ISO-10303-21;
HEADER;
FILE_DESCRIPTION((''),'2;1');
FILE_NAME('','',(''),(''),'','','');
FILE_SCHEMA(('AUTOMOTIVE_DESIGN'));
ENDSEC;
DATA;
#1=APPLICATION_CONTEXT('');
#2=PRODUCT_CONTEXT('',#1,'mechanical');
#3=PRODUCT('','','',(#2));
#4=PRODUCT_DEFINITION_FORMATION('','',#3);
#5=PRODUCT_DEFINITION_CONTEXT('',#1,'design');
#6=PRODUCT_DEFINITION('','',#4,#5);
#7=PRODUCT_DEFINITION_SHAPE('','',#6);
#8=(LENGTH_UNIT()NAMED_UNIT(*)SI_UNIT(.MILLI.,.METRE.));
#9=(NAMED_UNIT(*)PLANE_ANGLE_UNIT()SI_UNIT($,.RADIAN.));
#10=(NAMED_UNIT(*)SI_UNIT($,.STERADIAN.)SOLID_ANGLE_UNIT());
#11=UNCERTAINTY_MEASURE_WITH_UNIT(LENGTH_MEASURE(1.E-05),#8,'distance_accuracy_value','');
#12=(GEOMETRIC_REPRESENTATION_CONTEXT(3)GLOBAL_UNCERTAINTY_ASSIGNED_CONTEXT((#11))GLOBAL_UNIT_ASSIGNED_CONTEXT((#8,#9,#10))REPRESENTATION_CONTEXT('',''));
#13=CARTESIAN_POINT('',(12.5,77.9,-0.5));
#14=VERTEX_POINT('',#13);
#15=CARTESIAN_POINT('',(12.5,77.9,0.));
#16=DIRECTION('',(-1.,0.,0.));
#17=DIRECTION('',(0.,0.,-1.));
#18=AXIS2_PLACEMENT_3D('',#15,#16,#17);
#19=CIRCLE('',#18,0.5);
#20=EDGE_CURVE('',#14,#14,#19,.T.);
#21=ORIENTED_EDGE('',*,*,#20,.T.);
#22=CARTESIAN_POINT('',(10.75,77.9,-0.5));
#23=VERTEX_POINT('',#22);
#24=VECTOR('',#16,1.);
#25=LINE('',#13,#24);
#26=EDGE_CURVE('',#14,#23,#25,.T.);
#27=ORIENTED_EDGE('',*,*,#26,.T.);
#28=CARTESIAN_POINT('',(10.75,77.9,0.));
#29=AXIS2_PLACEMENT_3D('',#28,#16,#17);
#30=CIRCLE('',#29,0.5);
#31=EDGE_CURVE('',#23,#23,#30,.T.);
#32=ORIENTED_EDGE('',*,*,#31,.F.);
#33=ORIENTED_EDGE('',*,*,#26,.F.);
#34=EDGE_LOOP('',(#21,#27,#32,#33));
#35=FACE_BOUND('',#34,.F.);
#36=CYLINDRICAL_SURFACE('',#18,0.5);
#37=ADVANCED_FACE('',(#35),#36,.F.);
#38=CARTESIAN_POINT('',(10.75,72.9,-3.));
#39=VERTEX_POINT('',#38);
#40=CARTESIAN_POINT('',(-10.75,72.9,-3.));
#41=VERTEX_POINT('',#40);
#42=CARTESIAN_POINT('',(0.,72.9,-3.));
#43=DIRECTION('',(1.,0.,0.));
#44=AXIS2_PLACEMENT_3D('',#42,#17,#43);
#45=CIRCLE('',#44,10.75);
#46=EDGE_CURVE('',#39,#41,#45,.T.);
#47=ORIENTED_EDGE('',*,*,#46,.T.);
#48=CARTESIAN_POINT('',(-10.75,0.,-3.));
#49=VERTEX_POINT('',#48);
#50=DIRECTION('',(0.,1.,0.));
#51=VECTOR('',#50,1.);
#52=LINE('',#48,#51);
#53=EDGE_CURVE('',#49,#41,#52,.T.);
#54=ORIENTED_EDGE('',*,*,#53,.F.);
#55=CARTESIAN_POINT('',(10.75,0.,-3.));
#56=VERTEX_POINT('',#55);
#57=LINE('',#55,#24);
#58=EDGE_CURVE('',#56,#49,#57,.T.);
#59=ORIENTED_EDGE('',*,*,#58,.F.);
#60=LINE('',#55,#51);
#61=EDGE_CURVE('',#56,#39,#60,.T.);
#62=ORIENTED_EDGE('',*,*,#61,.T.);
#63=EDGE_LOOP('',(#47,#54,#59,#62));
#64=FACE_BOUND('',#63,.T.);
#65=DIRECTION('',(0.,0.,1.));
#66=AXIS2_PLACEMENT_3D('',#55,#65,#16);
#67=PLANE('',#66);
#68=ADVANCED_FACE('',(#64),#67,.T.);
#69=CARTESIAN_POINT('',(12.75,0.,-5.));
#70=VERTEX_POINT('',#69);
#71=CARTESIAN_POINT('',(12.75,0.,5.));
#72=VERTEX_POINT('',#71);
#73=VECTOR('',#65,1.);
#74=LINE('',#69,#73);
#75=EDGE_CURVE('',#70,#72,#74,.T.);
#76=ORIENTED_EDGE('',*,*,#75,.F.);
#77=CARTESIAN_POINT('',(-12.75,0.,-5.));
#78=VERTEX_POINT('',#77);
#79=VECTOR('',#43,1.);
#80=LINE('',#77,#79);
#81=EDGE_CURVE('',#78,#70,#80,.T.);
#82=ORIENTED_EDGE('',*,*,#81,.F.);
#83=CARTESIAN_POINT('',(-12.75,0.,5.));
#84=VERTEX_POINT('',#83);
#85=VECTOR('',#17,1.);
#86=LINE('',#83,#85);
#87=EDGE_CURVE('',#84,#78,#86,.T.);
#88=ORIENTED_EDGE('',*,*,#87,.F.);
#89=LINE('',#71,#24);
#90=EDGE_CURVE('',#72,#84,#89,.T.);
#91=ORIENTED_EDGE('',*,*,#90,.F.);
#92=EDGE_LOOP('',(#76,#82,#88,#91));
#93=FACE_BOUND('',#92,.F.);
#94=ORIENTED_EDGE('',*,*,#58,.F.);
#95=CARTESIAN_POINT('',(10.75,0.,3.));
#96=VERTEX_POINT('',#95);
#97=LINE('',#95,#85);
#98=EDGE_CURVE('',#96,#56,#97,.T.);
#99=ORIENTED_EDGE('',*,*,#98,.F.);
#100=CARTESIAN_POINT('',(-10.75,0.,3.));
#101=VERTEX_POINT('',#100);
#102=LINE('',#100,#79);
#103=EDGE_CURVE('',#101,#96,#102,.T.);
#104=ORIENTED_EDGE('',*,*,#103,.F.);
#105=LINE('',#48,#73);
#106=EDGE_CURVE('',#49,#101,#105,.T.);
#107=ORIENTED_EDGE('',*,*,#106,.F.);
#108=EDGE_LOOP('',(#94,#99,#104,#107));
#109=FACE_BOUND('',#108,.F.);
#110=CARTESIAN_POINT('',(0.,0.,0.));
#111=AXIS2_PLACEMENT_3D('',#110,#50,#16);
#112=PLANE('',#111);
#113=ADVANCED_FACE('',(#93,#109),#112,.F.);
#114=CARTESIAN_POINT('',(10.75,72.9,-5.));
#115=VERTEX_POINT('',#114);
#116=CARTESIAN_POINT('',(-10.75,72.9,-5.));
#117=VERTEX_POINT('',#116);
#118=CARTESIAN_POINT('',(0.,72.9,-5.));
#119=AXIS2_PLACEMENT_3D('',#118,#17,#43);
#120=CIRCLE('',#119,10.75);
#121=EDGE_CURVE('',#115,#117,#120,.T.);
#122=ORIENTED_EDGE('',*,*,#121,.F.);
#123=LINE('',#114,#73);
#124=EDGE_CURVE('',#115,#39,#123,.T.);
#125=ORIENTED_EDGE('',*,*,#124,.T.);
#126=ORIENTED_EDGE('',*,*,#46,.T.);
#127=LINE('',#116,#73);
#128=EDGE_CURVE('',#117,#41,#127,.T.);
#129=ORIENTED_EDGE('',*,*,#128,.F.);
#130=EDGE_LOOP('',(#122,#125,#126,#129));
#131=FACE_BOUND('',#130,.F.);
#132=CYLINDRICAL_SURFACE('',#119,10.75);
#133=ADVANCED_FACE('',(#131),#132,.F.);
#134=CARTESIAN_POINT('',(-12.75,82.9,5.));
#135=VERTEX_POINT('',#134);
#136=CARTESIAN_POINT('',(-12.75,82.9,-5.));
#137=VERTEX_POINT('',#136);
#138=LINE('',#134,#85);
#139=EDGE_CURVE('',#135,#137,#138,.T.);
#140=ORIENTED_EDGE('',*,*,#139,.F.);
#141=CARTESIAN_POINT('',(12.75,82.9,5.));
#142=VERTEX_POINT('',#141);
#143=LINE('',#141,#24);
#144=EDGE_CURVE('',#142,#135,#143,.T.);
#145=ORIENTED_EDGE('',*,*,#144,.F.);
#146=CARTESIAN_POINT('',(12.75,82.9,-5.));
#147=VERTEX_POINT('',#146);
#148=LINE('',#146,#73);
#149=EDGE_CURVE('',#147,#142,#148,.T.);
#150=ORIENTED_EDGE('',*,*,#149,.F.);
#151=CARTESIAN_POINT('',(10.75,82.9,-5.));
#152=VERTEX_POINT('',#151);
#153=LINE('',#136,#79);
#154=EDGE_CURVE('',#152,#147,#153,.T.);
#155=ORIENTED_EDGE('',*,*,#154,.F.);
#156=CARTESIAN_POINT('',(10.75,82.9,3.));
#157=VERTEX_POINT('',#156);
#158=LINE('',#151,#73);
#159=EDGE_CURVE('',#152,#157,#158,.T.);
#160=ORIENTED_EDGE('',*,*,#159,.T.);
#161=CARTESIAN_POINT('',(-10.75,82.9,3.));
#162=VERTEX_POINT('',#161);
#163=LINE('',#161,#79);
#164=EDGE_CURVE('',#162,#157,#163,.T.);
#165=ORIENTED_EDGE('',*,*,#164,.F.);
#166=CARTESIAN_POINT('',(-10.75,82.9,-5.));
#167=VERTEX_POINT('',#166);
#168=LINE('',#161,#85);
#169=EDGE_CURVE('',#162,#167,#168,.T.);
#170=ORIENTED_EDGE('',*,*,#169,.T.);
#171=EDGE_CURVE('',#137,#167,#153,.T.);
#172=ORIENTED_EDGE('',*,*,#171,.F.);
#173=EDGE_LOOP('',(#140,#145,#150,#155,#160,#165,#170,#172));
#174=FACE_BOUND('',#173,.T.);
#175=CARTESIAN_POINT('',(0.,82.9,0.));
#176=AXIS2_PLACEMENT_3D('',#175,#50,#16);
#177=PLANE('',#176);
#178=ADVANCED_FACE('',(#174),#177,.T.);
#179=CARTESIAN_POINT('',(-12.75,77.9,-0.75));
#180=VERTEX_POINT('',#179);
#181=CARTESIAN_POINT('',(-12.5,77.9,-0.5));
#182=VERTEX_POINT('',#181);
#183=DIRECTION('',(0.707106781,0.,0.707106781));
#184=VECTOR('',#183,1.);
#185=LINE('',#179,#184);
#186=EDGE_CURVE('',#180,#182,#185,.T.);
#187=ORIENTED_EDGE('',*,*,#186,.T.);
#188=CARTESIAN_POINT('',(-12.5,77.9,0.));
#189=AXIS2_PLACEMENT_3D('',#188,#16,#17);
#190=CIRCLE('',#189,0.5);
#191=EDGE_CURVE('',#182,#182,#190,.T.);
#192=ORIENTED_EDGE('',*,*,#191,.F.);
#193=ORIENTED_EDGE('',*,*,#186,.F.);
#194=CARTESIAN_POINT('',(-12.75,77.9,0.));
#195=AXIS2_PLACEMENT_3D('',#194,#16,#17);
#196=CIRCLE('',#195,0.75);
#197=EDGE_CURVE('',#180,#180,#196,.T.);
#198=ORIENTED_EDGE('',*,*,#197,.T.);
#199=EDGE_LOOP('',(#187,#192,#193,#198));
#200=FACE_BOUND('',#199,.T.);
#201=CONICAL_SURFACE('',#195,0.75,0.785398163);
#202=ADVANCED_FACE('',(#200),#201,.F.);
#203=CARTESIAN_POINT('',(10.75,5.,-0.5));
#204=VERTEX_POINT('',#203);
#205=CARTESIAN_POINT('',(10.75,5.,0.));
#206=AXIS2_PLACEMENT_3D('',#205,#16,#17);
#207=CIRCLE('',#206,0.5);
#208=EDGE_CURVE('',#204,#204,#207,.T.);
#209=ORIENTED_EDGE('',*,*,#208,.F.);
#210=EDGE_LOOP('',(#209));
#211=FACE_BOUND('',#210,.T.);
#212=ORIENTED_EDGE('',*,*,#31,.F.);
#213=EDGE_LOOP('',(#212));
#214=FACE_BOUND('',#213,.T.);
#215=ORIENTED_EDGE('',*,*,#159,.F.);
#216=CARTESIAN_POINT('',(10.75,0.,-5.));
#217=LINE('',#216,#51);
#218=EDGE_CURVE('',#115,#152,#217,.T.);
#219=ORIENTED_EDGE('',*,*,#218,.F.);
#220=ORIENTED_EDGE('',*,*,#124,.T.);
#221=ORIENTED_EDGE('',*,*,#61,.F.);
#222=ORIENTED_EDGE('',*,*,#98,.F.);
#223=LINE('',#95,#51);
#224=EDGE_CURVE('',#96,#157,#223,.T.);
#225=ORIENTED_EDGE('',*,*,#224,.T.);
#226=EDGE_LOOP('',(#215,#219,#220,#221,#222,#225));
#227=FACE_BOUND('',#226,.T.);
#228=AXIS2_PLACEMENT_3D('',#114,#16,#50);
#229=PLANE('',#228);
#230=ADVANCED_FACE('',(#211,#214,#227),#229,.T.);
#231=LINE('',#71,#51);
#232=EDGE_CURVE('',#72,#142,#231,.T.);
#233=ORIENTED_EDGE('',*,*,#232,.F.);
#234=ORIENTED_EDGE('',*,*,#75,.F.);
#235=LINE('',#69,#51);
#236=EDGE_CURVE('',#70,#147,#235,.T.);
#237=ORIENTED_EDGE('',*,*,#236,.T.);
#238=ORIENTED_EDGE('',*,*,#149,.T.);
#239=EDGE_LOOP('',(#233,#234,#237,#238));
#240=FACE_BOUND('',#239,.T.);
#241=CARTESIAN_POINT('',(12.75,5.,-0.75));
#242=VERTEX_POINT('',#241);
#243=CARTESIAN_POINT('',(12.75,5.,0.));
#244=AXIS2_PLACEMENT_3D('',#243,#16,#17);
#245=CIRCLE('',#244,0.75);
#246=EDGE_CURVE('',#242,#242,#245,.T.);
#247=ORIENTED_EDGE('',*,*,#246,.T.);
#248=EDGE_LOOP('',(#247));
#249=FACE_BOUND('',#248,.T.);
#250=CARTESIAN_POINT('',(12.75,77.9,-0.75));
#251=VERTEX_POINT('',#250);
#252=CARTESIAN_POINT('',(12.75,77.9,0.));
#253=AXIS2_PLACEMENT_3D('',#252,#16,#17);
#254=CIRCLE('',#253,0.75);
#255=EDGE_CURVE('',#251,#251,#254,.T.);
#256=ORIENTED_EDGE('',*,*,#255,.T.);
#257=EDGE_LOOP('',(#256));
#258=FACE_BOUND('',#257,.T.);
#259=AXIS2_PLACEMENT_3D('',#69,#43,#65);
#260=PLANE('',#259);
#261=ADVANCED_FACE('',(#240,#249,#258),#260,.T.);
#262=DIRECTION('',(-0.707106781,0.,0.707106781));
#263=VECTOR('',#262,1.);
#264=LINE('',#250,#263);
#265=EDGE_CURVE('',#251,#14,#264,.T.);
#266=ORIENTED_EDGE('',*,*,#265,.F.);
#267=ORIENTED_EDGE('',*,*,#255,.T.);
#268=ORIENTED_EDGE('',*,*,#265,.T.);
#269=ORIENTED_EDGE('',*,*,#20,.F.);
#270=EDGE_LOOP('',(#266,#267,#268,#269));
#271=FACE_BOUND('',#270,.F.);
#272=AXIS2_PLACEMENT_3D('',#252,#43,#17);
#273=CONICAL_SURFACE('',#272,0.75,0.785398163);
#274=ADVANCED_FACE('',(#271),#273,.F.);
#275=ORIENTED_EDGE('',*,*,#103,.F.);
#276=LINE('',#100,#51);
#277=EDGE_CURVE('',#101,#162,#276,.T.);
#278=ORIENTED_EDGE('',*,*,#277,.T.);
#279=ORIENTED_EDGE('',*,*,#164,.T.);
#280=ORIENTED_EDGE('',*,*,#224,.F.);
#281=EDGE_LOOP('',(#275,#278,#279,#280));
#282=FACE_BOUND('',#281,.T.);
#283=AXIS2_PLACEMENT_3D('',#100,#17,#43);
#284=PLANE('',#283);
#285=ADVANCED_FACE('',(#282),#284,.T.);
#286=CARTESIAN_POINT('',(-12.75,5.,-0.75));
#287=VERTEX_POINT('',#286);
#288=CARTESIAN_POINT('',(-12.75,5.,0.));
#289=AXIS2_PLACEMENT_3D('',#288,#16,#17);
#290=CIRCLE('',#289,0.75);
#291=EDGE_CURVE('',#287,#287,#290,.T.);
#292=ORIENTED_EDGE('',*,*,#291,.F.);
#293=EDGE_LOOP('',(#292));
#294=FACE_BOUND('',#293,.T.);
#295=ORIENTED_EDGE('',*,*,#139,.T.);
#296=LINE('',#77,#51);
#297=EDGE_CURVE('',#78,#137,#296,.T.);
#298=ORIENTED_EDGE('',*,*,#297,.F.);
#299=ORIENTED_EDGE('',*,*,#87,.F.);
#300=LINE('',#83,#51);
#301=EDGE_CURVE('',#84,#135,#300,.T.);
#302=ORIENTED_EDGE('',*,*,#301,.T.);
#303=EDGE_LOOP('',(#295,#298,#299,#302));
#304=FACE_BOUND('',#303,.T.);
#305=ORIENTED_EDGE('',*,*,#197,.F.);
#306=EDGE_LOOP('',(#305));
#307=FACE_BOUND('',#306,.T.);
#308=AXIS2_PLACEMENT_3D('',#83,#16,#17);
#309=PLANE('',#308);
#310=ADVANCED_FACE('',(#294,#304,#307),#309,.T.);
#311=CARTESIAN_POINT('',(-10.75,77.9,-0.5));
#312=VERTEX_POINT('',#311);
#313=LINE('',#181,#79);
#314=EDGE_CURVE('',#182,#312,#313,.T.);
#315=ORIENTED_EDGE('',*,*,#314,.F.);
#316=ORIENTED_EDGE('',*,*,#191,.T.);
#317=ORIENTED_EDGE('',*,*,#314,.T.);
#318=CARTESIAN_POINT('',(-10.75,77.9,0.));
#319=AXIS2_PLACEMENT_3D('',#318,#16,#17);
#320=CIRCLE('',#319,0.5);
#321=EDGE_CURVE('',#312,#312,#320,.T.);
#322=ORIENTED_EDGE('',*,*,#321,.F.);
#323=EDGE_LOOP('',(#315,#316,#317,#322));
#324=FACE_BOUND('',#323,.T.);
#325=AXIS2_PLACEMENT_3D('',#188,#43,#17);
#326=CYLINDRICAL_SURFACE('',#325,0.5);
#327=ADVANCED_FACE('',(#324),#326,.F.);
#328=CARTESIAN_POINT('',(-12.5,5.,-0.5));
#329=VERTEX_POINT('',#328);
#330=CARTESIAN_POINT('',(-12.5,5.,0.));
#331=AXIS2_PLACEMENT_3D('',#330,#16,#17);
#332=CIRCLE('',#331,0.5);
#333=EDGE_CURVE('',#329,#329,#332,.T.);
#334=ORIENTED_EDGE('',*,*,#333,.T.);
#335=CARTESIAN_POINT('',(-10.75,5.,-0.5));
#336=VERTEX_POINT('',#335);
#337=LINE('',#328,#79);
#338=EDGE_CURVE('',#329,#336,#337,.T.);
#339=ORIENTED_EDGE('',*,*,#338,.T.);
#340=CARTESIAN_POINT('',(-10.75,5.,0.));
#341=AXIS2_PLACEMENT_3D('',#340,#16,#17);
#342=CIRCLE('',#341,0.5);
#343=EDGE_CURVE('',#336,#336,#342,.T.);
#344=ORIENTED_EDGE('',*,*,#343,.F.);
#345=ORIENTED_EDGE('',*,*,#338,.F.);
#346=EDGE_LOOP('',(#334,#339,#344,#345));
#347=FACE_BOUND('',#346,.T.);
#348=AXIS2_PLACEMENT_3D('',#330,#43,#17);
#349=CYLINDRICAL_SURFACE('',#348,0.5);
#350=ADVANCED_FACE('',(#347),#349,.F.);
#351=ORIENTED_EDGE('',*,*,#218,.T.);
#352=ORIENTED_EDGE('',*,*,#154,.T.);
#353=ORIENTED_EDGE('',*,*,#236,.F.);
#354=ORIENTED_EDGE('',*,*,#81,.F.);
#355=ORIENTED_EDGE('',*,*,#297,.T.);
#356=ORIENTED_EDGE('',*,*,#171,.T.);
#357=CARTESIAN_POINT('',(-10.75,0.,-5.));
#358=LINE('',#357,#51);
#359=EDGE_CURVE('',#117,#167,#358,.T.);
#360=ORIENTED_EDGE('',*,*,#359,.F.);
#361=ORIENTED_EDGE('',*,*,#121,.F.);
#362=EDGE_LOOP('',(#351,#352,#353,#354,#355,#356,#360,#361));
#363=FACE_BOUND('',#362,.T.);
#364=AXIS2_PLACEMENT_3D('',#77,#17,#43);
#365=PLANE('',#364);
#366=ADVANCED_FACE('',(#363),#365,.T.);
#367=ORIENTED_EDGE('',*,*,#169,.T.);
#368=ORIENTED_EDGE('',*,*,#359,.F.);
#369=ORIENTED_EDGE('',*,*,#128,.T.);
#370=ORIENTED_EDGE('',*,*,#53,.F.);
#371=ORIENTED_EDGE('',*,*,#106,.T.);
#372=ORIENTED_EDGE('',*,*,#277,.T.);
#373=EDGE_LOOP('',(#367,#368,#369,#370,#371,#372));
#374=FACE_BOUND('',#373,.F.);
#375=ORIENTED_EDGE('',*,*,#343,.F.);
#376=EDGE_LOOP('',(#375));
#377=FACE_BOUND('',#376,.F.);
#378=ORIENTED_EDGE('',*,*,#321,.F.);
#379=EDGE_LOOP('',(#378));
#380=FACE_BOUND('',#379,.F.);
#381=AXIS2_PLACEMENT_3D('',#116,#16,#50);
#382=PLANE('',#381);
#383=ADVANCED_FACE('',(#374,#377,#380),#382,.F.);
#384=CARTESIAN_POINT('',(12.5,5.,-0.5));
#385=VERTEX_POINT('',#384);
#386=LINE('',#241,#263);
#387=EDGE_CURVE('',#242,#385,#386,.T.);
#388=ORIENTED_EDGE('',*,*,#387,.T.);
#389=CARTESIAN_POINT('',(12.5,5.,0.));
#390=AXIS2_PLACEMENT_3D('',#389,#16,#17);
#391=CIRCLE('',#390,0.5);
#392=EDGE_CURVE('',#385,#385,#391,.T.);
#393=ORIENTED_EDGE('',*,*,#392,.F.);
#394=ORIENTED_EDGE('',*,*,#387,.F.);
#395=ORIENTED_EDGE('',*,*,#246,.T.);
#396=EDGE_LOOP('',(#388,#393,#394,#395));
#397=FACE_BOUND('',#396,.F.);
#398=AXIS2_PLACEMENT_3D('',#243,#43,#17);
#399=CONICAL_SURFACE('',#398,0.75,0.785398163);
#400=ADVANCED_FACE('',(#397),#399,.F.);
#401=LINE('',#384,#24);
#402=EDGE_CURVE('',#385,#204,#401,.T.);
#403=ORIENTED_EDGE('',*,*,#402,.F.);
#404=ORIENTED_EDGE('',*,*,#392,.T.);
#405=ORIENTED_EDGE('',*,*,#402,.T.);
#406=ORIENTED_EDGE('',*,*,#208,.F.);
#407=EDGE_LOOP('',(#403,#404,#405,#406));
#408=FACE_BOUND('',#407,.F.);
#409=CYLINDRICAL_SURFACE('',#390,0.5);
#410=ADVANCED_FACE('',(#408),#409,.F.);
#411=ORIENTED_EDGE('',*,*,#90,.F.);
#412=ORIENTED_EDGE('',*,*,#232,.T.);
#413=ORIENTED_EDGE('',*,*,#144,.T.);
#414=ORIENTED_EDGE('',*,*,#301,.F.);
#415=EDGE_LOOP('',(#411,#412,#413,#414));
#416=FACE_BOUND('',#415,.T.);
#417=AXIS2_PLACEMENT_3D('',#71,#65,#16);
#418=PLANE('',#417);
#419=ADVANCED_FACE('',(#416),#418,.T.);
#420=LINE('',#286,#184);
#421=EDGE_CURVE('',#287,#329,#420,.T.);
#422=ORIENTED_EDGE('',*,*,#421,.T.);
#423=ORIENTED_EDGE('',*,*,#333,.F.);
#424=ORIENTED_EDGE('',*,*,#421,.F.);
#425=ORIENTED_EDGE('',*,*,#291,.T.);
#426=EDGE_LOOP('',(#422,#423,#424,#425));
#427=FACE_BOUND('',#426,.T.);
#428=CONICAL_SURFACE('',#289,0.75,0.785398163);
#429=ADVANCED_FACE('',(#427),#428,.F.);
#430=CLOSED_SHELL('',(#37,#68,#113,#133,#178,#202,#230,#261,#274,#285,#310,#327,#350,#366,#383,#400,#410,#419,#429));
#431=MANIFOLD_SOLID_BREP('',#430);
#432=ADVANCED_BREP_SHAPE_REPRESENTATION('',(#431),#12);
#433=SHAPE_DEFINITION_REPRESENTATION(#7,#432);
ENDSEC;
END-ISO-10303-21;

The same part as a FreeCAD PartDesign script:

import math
import FreeCAD as App
import Part
import Sketcher
Q = App.Units.Quantity


def add_polygon(sketch, points):
    """Adds a closed chain of lines whose ends are joined by coincident constraints."""
    first, n = sketch.GeometryCount, len(points)
    for a, b in zip(points, points[1:] + points[:1]):
        sketch.addGeometry(Part.LineSegment(App.Vector(*a, 0), App.Vector(*b, 0)), False)
    for i in range(n):
        sketch.addConstraint(Sketcher.Constraint("Coincident", first + i, 2, first + (i + 1) % n, 1))

doc = App.newDocument("Part")
body = doc.addObject("PartDesign::Body", "Body")

sketch1 = body.newObject("Sketcher::SketchObject", "Sketch")
sketch1.AttachmentSupport = (doc.getObject("XZ_Plane"), [""])
sketch1.MapMode = "FlatFace"
add_polygon(sketch1, [(13, -5), (-13, -5), (-13, 5), (13, 5)])
add_polygon(sketch1, [(-11, -3), (11, -3), (11, 3), (-11, 3)])
sketch1.addConstraint(Sketcher.Constraint("Horizontal", 0))
sketch1.addConstraint(Sketcher.Constraint("Vertical", 1))
sketch1.addConstraint(Sketcher.Constraint("Horizontal", 2))
sketch1.addConstraint(Sketcher.Constraint("Vertical", 3))
sketch1.addConstraint(Sketcher.Constraint("Horizontal", 4))
sketch1.addConstraint(Sketcher.Constraint("Vertical", 5))
sketch1.addConstraint(Sketcher.Constraint("Horizontal", 6))
sketch1.addConstraint(Sketcher.Constraint("Vertical", 7))
sketch1.addConstraint(Sketcher.Constraint("Symmetric", 0, 2, 2, 2, -1, 1))
sketch1.addConstraint(Sketcher.Constraint("Symmetric", 4, 2, 6, 2, -1, 1))
sketch1.addConstraint(Sketcher.Constraint("DistanceY", 1, 1, 1, 2, Q("10 mm")))
sketch1.addConstraint(Sketcher.Constraint("DistanceX", 0, 2, 0, 1, Q("25.5 mm")))
sketch1.addConstraint(Sketcher.Constraint("DistanceX", 4, 2, 3, 2, Q("2 mm")))
sketch1.addConstraint(Sketcher.Constraint("DistanceY", 3, 2, 4, 2, Q("2 mm")))
pad1 = body.newObject("PartDesign::Pad", "Pad")
pad1.Profile = sketch1
pad1.Length = 82.9
pad1.Reversed = True

sketch2 = body.newObject("Sketcher::SketchObject", "Sketch001")
sketch2.AttachmentSupport = (doc.getObject("XY_Plane"), [""])
sketch2.MapMode = "FlatFace"
sketch2.AttachmentOffset = App.Placement(App.Vector(0, 0, -5), App.Rotation())
sketch2.addGeometry(Part.LineSegment(App.Vector(-11, 83, 0), App.Vector(11, 83, 0)), False)
sketch2.addGeometry(Part.LineSegment(App.Vector(11, 83, 0), App.Vector(11, 73, 0)), False)
sketch2.addGeometry(Part.ArcOfCircle(Part.Circle(App.Vector(0, 73, 0), App.Vector(0, 0, 1), 11), math.radians(180), math.radians(360)), False)
sketch2.addGeometry(Part.LineSegment(App.Vector(-11, 73, 0), App.Vector(-11, 83, 0)), False)
sketch2.addConstraint(Sketcher.Constraint("Coincident", 0, 2, 1, 1))
sketch2.addConstraint(Sketcher.Constraint("Tangent", 1, 2, 2, 2))
sketch2.addConstraint(Sketcher.Constraint("Tangent", 2, 1, 3, 1))
sketch2.addConstraint(Sketcher.Constraint("Coincident", 3, 2, 0, 1))
sketch2.addConstraint(Sketcher.Constraint("Horizontal", 0))
sketch2.addConstraint(Sketcher.Constraint("Vertical", 1))
sketch2.addConstraint(Sketcher.Constraint("Vertical", 3))
sketch2.addConstraint(Sketcher.Constraint("PointOnObject", 2, 3, -2))
sketch2.addConstraint(Sketcher.Constraint("DistanceY", 1, 2, 1, 1, Q("10 mm")))
sketch2.addConstraint(Sketcher.Constraint("Radius", 2, Q("10.75 mm")))
sketch2.addConstraint(Sketcher.Constraint("DistanceY", -1, 1, 2, 3, Q("72.9 mm")))
pocket1 = body.newObject("PartDesign::Pocket", "Pocket")
pocket1.Profile = sketch2
pocket1.Length = 2
pocket1.Reversed = True

sketch3 = body.newObject("Sketcher::SketchObject", "Sketch002")
sketch3.AttachmentSupport = (doc.getObject("YZ_Plane"), [""])
sketch3.MapMode = "FlatFace"
sketch3.AttachmentOffset = App.Placement(App.Vector(0, 0, 12.75), App.Rotation())
sketch3.addGeometry(Part.Circle(App.Vector(77.9, 0, 0), App.Vector(0, 0, 1), 0.5), False)
sketch3.addGeometry(Part.Circle(App.Vector(5, 0, 0), App.Vector(0, 0, 1), 0.5), False)
sketch3.addConstraint(Sketcher.Constraint("Equal", 0, 1))
sketch3.addConstraint(Sketcher.Constraint("PointOnObject", 0, 3, -1))
sketch3.addConstraint(Sketcher.Constraint("PointOnObject", 1, 3, -1))
sketch3.addConstraint(Sketcher.Constraint("Diameter", 0, Q("1 mm")))
sketch3.addConstraint(Sketcher.Constraint("DistanceX", -1, 1, 1, 3, Q("5 mm")))
sketch3.addConstraint(Sketcher.Constraint("DistanceX", -1, 1, 0, 3, Q("77.9 mm")))
doc.recompute()
hole = body.newObject("PartDesign::Hole", "Hole")
hole.Profile = sketch3
hole.ThreadType = "None"
hole.Diameter = 1
hole.DepthType = "Dimension"
hole.Depth = 2
hole.DrillPoint = "Flat"
hole.HoleCutType = "Countersink"
hole.HoleCutDiameter = 1.5
hole.HoleCutCountersinkAngle = 90
doc.recompute()

mirrored = body.newObject("PartDesign::Mirrored", "Mirrored")
mirrored.Originals = [hole]
mirrored.MirrorPlane = (doc.getObject("YZ_Plane"), [""])
body.Tip = mirrored

doc.recompute()
